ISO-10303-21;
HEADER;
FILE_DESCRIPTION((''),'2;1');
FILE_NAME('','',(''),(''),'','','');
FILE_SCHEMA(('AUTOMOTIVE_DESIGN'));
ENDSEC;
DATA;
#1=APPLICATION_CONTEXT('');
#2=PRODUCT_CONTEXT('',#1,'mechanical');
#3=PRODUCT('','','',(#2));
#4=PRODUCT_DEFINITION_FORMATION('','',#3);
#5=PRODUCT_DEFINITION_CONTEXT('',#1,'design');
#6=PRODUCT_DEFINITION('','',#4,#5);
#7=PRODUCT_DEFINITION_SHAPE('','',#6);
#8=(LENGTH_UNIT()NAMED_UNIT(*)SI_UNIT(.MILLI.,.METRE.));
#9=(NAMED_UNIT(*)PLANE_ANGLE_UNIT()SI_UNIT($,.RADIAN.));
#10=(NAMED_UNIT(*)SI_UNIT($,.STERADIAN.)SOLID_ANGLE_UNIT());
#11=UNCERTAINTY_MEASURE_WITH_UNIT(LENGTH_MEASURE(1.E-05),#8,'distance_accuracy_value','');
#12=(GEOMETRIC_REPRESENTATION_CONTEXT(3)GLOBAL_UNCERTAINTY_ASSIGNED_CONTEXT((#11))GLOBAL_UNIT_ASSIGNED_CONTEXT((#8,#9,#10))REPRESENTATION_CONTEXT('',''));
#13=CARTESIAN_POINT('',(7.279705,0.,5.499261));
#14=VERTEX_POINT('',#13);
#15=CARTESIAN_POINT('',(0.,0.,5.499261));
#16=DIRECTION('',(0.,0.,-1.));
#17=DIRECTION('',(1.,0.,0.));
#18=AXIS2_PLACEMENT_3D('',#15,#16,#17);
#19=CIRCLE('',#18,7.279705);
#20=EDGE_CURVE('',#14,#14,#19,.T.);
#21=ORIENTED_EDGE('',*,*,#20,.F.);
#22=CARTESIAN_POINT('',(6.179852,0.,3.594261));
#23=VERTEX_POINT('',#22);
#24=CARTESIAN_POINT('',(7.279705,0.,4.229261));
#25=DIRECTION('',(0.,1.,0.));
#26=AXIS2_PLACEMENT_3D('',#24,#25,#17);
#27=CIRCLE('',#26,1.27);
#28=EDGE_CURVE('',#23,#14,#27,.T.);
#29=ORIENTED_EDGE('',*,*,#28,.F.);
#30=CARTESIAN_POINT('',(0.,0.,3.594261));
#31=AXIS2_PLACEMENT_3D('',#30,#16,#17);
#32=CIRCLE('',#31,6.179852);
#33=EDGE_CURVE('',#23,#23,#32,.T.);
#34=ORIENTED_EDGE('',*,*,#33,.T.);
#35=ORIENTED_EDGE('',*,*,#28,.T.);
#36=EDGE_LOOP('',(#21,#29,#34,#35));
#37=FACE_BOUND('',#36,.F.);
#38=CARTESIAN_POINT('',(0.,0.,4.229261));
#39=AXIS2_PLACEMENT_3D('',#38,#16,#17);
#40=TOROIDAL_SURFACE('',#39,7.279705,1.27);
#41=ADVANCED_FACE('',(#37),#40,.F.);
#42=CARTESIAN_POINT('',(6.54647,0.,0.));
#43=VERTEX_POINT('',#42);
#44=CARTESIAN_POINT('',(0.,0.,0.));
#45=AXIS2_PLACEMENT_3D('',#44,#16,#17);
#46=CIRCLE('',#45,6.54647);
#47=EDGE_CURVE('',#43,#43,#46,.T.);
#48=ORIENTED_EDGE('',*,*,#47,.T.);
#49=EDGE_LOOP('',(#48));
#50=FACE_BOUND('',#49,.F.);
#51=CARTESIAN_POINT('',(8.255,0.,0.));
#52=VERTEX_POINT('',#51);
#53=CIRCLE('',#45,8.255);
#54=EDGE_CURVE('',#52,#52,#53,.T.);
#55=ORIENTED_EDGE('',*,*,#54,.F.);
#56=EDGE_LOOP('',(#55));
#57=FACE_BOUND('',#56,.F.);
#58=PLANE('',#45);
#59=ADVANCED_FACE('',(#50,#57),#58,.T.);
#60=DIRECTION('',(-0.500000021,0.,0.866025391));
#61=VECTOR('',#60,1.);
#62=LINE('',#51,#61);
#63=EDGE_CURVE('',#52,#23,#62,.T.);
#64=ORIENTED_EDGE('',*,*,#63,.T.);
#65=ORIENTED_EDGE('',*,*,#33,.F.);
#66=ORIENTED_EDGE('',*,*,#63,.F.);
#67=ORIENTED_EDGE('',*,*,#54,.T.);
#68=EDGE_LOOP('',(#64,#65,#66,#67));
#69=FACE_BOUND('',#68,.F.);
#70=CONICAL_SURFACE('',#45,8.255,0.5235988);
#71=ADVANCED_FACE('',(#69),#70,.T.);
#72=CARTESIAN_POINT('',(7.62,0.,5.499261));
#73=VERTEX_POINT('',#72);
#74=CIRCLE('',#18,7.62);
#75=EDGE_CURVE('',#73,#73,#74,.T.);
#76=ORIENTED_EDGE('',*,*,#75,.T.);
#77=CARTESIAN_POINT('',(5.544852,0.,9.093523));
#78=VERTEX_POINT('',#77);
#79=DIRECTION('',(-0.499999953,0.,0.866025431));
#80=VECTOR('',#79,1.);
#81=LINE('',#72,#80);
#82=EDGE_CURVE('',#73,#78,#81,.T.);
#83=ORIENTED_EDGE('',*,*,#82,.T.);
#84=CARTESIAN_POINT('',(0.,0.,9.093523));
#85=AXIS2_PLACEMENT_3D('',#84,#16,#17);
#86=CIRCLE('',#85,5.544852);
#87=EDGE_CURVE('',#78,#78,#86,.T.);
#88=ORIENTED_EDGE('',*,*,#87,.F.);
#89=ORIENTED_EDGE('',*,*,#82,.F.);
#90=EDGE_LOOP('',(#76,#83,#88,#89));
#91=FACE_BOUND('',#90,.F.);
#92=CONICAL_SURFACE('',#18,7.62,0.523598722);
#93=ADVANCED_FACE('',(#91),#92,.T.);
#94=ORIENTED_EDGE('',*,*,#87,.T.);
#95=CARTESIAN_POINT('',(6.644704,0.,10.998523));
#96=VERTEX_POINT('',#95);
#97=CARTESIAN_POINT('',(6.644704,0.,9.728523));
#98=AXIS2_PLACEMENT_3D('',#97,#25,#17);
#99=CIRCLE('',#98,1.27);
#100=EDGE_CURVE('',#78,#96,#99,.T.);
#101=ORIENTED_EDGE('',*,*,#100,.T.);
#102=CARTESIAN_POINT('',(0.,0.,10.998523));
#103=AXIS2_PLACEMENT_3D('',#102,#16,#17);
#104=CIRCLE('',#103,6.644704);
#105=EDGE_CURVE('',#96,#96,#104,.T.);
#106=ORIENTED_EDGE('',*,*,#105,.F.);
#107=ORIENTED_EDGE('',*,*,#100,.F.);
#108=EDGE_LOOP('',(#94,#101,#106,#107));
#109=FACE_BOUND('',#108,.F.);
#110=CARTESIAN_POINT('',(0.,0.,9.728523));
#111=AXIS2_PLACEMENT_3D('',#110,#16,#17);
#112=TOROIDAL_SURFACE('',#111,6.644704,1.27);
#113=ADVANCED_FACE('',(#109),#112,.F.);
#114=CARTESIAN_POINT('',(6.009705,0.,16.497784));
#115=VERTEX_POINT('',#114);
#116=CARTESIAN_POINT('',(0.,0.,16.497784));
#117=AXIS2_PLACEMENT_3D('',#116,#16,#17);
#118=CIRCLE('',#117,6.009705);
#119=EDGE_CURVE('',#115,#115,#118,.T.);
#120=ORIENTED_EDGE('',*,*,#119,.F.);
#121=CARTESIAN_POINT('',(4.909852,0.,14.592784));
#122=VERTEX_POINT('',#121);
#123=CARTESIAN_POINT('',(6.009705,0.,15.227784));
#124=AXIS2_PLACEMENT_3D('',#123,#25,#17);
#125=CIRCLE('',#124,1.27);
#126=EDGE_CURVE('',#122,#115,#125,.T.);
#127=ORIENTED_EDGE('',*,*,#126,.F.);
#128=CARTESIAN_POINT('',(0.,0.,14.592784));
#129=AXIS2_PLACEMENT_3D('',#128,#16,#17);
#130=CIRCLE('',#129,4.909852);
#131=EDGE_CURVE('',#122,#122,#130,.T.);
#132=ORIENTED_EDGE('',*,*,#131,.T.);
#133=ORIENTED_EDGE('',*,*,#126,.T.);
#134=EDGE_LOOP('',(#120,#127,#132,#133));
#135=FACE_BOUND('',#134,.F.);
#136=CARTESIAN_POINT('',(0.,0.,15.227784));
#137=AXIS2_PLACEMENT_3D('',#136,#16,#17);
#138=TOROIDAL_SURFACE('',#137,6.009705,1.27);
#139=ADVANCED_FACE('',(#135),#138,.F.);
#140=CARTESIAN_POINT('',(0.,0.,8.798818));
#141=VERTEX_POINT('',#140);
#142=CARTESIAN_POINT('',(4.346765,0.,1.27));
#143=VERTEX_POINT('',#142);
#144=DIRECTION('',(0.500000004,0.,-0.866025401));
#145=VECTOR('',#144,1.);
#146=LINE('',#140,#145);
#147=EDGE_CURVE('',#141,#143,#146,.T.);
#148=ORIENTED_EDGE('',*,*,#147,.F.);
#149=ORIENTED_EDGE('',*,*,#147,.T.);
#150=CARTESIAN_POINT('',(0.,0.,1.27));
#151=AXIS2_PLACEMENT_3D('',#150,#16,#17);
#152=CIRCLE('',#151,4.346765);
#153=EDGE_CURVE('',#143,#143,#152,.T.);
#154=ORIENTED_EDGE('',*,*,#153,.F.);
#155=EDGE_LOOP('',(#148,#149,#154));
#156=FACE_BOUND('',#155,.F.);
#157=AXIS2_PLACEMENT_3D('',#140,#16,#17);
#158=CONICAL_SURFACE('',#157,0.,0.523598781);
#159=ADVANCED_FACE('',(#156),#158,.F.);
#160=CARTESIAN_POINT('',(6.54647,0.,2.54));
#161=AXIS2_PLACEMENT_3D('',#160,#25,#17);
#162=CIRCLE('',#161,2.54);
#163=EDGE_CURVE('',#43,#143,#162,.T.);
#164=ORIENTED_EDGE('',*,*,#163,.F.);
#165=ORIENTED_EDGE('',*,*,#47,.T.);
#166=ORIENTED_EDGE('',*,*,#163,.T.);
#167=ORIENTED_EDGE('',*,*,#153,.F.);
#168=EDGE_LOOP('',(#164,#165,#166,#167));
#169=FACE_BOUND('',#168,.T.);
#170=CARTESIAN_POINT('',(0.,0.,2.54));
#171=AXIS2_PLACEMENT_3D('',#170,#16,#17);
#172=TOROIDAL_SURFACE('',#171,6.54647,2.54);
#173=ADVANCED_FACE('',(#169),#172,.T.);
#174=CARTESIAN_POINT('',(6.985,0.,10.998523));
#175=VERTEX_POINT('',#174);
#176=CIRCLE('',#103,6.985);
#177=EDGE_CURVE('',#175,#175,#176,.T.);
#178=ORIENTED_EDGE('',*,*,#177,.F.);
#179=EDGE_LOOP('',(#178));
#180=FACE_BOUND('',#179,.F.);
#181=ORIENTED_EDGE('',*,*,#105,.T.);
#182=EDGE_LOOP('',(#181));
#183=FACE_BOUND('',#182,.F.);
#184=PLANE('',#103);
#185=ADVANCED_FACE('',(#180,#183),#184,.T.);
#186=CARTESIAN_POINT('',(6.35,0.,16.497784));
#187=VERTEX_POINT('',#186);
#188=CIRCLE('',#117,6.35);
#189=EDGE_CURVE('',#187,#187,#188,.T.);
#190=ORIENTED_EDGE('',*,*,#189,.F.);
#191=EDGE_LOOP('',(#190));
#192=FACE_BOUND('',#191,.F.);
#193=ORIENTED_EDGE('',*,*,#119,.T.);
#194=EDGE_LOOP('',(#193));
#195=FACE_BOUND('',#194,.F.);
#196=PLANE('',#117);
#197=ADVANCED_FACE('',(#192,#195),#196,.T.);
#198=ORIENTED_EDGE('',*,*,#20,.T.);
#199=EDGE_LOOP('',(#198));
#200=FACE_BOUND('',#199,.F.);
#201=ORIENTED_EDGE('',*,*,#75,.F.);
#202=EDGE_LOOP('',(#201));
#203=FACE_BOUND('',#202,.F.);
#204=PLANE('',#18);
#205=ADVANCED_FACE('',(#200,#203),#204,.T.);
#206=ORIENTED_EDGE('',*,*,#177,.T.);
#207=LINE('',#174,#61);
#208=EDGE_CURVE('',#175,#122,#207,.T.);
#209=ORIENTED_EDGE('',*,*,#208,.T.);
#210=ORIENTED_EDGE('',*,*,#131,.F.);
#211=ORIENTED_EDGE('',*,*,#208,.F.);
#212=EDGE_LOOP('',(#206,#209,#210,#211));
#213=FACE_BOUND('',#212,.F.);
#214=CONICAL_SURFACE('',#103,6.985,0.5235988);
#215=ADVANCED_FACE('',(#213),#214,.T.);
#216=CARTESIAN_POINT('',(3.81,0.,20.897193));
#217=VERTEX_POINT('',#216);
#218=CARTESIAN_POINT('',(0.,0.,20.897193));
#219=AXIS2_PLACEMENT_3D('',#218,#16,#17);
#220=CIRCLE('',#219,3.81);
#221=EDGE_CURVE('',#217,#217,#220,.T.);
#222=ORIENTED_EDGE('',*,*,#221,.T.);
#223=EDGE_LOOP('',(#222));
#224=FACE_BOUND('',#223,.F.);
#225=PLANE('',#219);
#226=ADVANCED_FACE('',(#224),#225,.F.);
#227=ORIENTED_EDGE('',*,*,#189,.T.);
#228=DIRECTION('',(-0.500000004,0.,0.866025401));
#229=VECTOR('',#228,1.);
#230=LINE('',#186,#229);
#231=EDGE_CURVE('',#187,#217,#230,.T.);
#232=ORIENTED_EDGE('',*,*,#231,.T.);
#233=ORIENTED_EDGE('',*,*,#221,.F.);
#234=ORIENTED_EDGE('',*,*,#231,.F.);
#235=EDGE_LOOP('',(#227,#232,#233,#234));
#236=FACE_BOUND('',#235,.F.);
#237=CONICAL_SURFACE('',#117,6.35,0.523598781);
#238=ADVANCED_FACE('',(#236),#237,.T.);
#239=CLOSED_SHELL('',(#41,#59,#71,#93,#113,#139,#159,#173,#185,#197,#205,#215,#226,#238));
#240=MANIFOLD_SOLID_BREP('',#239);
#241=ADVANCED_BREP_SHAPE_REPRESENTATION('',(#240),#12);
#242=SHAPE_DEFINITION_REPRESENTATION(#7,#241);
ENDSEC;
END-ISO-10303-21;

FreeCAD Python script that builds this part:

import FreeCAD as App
import Part
import Sketcher
from FreeCAD import Vector
Q = App.Units.Quantity


def edges_at(feature, points):
    """Names of the edges that pass closest to the given points."""
    edges = feature.Shape.Edges
    near = lambda p: min(range(len(edges)), key=lambda i: edges[i].distToShape(Part.Vertex(*p))[0])
    return sorted({f"Edge{near(p) + 1}" for p in points})


def add_polygon(sketch, points):
    """Adds a closed chain of lines whose ends are joined by coincident constraints."""
    first, n = sketch.GeometryCount, len(points)
    for a, b in zip(points, points[1:] + points[:1]):
        sketch.addGeometry(Part.LineSegment(App.Vector(*a, 0), App.Vector(*b, 0)), False)
    for i in range(n):
        sketch.addConstraint(Sketcher.Constraint("Coincident", first + i, 2, first + (i + 1) % n, 1))

doc = App.newDocument("Part")
body = doc.addObject("PartDesign::Body", "Body")

# Sketch on XZ plane
sketch1 = doc.addObject("Sketcher::SketchObject", "Sketch")
body.addObject(sketch1)
sketch1.AttachmentSupport = (doc.XZ_Plane, [""])
sketch1.MapMode = "FlatFace"
add_polygon(sketch1, [(5.1, 0), (8.3, 0), (5.1, 5.5), (7.6, 5.5), (4.4, 11), (7, 11), (3.8, 16.5), (6.3, 16.5), (3.8, 20.9), (0, 20.9), (0, 8.8)])  # lines 0-10
sketch1.addConstraint([
    Sketcher.Constraint("Horizontal", 0),
    Sketcher.Constraint("Horizontal", 2),
    Sketcher.Constraint("Horizontal", 4),
    Sketcher.Constraint("Horizontal", 6),
    Sketcher.Constraint("Horizontal", 8),
    Sketcher.Constraint("Vertical", 9),
    Sketcher.Constraint("PointOnObject", 0, 2, -1),
    Sketcher.Constraint("PointOnObject", 8, 2, -2),
    Sketcher.Constraint("Parallel", 1, 3),
    Sketcher.Constraint("Parallel", 3, 5),
    Sketcher.Constraint("Parallel", 5, 7),
    Sketcher.Constraint("Parallel", 7, 10),
    Sketcher.Constraint("Vertical", 5, 2, 7, 2),
    Sketcher.Constraint("Vertical", 1, 2, 10, 2),
    Sketcher.Constraint("Equal", 2, 4),
    Sketcher.Constraint("Equal", 4, 6),
    Sketcher.Constraint("Equal", 1, 3),
    Sketcher.Constraint("Equal", 3, 5),
    Sketcher.Constraint("DistanceX", 2, 1, 2, 2, Q("0.1 in")),
    Sketcher.Constraint("Angle", 1, Q("120.000001 deg")),
    Sketcher.Constraint("Distance", 10, Q("0.4 in")),
    Sketcher.Constraint("DistanceX", 8, 2, 8, 1, Q("0.15 in")),
])
revolution = doc.addObject("PartDesign::Revolution", "Revolution")
body.addObject(revolution)
revolution.Profile = sketch1
revolution.ReferenceAxis = (sketch1, ["V_Axis"])
revolution.Angle = 360
doc.recompute()

fillet = doc.addObject("PartDesign::Fillet", "Fillet")
body.addObject(fillet)
fillet.Base = (revolution, edges_at(revolution, [(-5.08, 0, 0)]))
fillet.Radius = Q("0.1 in")
doc.recompute()

fillet2 = doc.addObject("PartDesign::Fillet", "Fillet001")
body.addObject(fillet2)
fillet2.Base = (fillet, edges_at(fillet, [(-5.08, 0, 5.499), (-4.445, 0, 10.999), (-3.81, 0, 16.498)]))
fillet2.Radius = Q("0.05 in")

doc.recompute()
